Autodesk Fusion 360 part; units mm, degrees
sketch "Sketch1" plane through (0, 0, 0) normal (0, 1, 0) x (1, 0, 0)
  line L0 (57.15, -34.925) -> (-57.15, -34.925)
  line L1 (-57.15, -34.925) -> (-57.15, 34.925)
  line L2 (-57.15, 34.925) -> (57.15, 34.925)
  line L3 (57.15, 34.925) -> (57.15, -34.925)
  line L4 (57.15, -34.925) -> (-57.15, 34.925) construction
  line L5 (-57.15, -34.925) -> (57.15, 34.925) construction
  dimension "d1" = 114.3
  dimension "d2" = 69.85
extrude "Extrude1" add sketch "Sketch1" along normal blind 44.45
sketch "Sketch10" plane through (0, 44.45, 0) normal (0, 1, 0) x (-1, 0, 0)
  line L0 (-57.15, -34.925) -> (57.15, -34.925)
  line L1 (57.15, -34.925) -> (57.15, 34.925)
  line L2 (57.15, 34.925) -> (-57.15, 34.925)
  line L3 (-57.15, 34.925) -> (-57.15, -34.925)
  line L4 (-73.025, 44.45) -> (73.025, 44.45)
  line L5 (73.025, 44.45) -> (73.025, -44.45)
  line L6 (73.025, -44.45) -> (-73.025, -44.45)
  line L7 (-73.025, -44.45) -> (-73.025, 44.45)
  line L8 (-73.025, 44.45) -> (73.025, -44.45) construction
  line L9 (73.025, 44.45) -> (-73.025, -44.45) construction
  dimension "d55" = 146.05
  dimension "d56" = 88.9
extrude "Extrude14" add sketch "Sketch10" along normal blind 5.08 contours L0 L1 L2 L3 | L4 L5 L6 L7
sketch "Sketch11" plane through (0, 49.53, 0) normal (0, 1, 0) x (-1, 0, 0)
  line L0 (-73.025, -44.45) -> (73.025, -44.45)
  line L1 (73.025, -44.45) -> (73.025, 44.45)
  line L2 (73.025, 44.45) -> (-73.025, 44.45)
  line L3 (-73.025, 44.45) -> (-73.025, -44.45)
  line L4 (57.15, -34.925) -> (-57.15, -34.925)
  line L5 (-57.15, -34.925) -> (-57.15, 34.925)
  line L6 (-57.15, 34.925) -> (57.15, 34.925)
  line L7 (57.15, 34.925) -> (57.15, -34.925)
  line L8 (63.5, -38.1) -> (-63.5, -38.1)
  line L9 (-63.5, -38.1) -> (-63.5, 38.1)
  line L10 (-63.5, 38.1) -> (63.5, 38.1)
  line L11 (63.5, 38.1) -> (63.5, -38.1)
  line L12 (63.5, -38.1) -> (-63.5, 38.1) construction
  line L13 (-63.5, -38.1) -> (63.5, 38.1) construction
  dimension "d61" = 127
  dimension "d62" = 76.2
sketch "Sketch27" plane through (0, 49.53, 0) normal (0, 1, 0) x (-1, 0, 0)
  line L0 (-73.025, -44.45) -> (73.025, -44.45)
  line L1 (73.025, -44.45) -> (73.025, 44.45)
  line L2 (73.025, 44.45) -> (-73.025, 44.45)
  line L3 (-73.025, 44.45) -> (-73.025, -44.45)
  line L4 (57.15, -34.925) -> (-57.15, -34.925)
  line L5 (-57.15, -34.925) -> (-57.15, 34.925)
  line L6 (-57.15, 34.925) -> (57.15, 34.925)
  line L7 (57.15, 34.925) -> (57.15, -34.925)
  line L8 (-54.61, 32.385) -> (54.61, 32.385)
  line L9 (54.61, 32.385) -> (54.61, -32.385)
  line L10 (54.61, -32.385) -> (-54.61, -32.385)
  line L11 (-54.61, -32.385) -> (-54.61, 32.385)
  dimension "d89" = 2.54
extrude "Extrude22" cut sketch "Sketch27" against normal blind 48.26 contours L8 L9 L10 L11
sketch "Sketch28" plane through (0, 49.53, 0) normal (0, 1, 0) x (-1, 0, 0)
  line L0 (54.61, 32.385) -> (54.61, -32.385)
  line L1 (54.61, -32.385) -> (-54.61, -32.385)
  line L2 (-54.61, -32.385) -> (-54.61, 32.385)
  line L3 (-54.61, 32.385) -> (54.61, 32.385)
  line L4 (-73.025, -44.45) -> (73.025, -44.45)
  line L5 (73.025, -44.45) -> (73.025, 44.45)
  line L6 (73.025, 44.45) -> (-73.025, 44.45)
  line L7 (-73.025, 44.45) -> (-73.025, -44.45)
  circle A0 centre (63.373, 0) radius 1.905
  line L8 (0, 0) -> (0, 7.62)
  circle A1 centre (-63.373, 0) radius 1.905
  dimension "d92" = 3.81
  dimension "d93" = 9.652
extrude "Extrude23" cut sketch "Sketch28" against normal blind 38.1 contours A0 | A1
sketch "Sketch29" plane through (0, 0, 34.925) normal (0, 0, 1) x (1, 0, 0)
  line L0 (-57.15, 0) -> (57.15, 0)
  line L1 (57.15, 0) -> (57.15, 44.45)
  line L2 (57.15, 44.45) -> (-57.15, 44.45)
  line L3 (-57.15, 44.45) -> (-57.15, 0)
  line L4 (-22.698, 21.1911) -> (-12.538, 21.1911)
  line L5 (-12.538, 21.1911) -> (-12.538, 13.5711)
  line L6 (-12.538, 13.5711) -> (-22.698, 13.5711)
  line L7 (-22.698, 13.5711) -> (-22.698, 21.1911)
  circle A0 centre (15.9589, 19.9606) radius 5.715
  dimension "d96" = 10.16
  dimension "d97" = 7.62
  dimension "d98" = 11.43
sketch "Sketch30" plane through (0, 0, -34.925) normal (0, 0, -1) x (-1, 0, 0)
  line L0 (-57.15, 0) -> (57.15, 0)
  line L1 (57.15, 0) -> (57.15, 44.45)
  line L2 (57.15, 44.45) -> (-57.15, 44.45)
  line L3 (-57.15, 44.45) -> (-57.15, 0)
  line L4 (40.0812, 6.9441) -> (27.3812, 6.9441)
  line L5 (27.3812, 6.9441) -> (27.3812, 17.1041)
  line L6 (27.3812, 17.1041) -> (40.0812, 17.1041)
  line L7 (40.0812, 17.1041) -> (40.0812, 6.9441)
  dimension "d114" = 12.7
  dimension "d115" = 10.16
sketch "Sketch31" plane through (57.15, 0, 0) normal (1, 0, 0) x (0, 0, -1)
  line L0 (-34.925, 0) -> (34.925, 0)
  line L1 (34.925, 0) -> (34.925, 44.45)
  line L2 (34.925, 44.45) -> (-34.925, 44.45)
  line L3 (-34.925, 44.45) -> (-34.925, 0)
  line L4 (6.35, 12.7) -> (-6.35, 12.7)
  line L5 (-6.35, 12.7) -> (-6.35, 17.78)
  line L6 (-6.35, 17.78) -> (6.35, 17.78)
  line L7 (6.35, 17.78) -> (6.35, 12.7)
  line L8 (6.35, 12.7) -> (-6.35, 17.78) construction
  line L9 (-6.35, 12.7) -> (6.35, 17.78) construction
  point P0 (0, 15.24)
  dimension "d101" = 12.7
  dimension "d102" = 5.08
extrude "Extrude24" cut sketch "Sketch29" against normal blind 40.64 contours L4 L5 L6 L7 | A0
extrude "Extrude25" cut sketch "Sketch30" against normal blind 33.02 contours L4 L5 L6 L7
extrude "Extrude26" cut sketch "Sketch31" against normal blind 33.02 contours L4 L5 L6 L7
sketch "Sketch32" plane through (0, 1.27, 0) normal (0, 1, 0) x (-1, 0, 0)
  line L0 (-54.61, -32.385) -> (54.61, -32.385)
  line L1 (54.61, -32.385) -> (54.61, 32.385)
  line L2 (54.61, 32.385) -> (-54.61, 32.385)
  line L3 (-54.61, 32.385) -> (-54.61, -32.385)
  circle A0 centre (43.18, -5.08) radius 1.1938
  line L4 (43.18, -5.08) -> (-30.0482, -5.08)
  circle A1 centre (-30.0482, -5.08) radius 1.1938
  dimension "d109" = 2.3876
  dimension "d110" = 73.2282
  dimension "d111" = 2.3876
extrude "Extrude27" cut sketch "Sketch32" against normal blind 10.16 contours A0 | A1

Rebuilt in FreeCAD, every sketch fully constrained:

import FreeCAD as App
import Part
import Sketcher

V = App.Vector
Q = App.Units.Quantity


def add_polygon(sketch, points):
    """Adds a closed chain of lines whose ends are joined by coincident constraints."""
    first, n = sketch.GeometryCount, len(points)
    for a, b in zip(points, points[1:] + points[:1]):
        sketch.addGeometry(Part.LineSegment(App.Vector(*a, 0), App.Vector(*b, 0)), False)
    for i in range(n):
        sketch.addConstraint(Sketcher.Constraint("Coincident", first + i, 2, first + (i + 1) % n, 1))

doc = App.newDocument("Part")
body = doc.addObject("PartDesign::Body", "Body")

# Sketch on XZ plane
sketch1 = doc.addObject("Sketcher::SketchObject", "Sketch")
body.addObject(sketch1)
sketch1.AttachmentSupport = (doc.XZ_Plane, [""])
sketch1.MapMode = "FlatFace"
add_polygon(sketch1, [(-57, 35), (57, 35), (57, -35), (-57, -35)])  # lines 0-3
sketch1.addConstraint(Sketcher.Constraint("Horizontal", 0))
sketch1.addConstraint(Sketcher.Constraint("Vertical", 1))
sketch1.addConstraint(Sketcher.Constraint("Horizontal", 2))
sketch1.addConstraint(Sketcher.Constraint("Vertical", 3))
sketch1.addConstraint(Sketcher.Constraint("Symmetric", 0, 2, 2, 2, -1, 1))
sketch1.addConstraint(Sketcher.Constraint("DistanceX", 0, 1, 0, 2, Q("4.5 in")))
sketch1.addConstraint(Sketcher.Constraint("DistanceY", 1, 2, 1, 1, Q("2.75 in")))
pad1 = doc.addObject("PartDesign::Pad", "Pad")
body.addObject(pad1)
pad1.Profile = sketch1
pad1.Length = Q("1.75 in")
pad1.Reversed = True

# Sketch on XZ plane
sketch2 = doc.addObject("Sketcher::SketchObject", "Sketch001")
body.addObject(sketch2)
sketch2.AttachmentSupport = (doc.XZ_Plane, [""])
sketch2.MapMode = "FlatFace"
sketch2.AttachmentOffset = App.Placement(V(0, 0, -1.75 * 25.4), App.Rotation())
add_polygon(sketch2, [(-73, 44), (73, 44), (73, -44), (-73, -44)])  # lines 0-3
sketch2.addConstraint(Sketcher.Constraint("Horizontal", 0))
sketch2.addConstraint(Sketcher.Constraint("Vertical", 1))
sketch2.addConstraint(Sketcher.Constraint("Horizontal", 2))
sketch2.addConstraint(Sketcher.Constraint("Vertical", 3))
sketch2.addConstraint(Sketcher.Constraint("Symmetric", 0, 2, 2, 2, -1, 1))
sketch2.addConstraint(Sketcher.Constraint("DistanceY", 1, 2, 1, 1, Q("3.5 in")))
sketch2.addConstraint(Sketcher.Constraint("DistanceX", 0, 1, 0, 2, Q("5.75 in")))
pad2 = doc.addObject("PartDesign::Pad", "Pad001")
body.addObject(pad2)
pad2.Profile = sketch2
pad2.Length = Q("0.2 in")
pad2.Reversed = True

# Sketch on XZ plane
sketch3 = doc.addObject("Sketcher::SketchObject", "Sketch002")
body.addObject(sketch3)
sketch3.AttachmentSupport = (doc.XZ_Plane, [""])
sketch3.MapMode = "FlatFace"
sketch3.AttachmentOffset = App.Placement(V(0, 0, -1.95 * 25.4), App.Rotation())
add_polygon(sketch3, [(-55, 32), (55, 32), (55, -32), (-55, -32)])  # lines 0-3
sketch3.addConstraint(Sketcher.Constraint("Horizontal", 0))
sketch3.addConstraint(Sketcher.Constraint("Vertical", 1))
sketch3.addConstraint(Sketcher.Constraint("Horizontal", 2))
sketch3.addConstraint(Sketcher.Constraint("Vertical", 3))
sketch3.addConstraint(Sketcher.Constraint("Symmetric", 0, 2, 2, 2, -1, 1))
sketch3.addConstraint(Sketcher.Constraint("DistanceX", 0, 1, 0, 2, Q("4.3 in")))
sketch3.addConstraint(Sketcher.Constraint("DistanceY", 1, 2, 1, 1, Q("2.55 in")))
pocket1 = doc.addObject("PartDesign::Pocket", "Pocket")
body.addObject(pocket1)
pocket1.Profile = sketch3
pocket1.Length = Q("1.9 in")
pocket1.Reversed = True

# Sketch on XZ plane
sketch4 = doc.addObject("Sketcher::SketchObject", "Sketch003")
body.addObject(sketch4)
sketch4.AttachmentSupport = (doc.XZ_Plane, [""])
sketch4.MapMode = "FlatFace"
sketch4.AttachmentOffset = App.Placement(V(0, 0, -1.95 * 25.4), App.Rotation())
sketch4.addGeometry(Part.Circle(V(-63.4, 0, 0), V(0, 0, 1), 1.9), False)
sketch4.addGeometry(Part.Circle(V(63.4, 0, 0), V(0, 0, 1), 1.9), False)
sketch4.addConstraint(Sketcher.Constraint("Equal", 0, 1))
sketch4.addConstraint(Sketcher.Constraint("Symmetric", 0, 3, 1, 3, -1, 1))
sketch4.addConstraint(Sketcher.Constraint("PointOnObject", 0, 3, -1))
sketch4.addConstraint(Sketcher.Constraint("Diameter", 0, Q("0.15 in")))
sketch4.addConstraint(Sketcher.Constraint("DistanceX", 0, 3, 1, 3, Q("4.99 in")))
pocket2 = doc.addObject("PartDesign::Pocket", "Pocket001")
body.addObject(pocket2)
pocket2.Profile = sketch4
pocket2.Length = Q("1.5 in")
pocket2.Reversed = True

# Sketch on XY plane
sketch5 = doc.addObject("Sketcher::SketchObject", "Sketch004")
body.addObject(sketch5)
sketch5.AttachmentSupport = (doc.XY_Plane, [""])
sketch5.MapMode = "FlatFace"
sketch5.AttachmentOffset = App.Placement(V(0, 0, 1.375 * 25.4), App.Rotation())
add_polygon(sketch5, [(-13, 21), (-23, 21), (-23, 14), (-13, 14)])  # lines 0-3
sketch5.addGeometry(Part.Circle(V(16, 20, 0), V(0, 0, 1), 6), False)  # 4
sketch5.addConstraint(Sketcher.Constraint("Horizontal", 0))
sketch5.addConstraint(Sketcher.Constraint("Vertical", 1))
sketch5.addConstraint(Sketcher.Constraint("Horizontal", 2))
sketch5.addConstraint(Sketcher.Constraint("Vertical", 3))
sketch5.addConstraint(Sketcher.Constraint("Diameter", 4, Q("0.45 in")))
sketch5.addConstraint(Sketcher.Constraint("DistanceX", 0, 2, 0, 1, Q("0.4 in")))
sketch5.addConstraint(Sketcher.Constraint("DistanceY", 1, 2, 1, 1, Q("0.3 in")))
sketch5.addConstraint(Sketcher.Constraint("DistanceX", -1, 1, 4, 3, Q("0.6283 in")))
sketch5.addConstraint(Sketcher.Constraint("DistanceY", -1, 1, 0, 2, Q("0.8343 in")))
sketch5.addConstraint(Sketcher.Constraint("DistanceY", -1, 1, 4, 3, 19.9606))
sketch5.addConstraint(Sketcher.Constraint("DistanceX", 0, 2, -1, 1, 22.698))
pocket3 = doc.addObject("PartDesign::Pocket", "Pocket002")
body.addObject(pocket3)
pocket3.Profile = sketch5
pocket3.Length = Q("1.6 in")

# Sketch on XY plane
sketch6 = doc.addObject("Sketcher::SketchObject", "Sketch005")
body.addObject(sketch6)
sketch6.AttachmentSupport = (doc.XY_Plane, [""])
sketch6.MapMode = "FlatFace"
sketch6.AttachmentOffset = App.Placement(V(0, 0, -1.375 * 25.4), App.Rotation())
add_polygon(sketch6, [(-27, 7), (-40, 7), (-40, 17), (-27, 17)])  # lines 0-3
sketch6.addConstraint(Sketcher.Constraint("Horizontal", 0))
sketch6.addConstraint(Sketcher.Constraint("Vertical", 1))
sketch6.addConstraint(Sketcher.Constraint("Horizontal", 2))
sketch6.addConstraint(Sketcher.Constraint("Vertical", 3))
sketch6.addConstraint(Sketcher.Constraint("DistanceX", 0, 2, 0, 1, Q("0.5 in")))
sketch6.addConstraint(Sketcher.Constraint("DistanceY", 1, 1, 1, 2, Q("0.4 in")))
sketch6.addConstraint(Sketcher.Constraint("DistanceX", 0, 2, -1, 1, Q("1.578 in")))
sketch6.addConstraint(Sketcher.Constraint("DistanceY", -1, 1, 0, 2, Q("0.2734 in")))
pocket4 = doc.addObject("PartDesign::Pocket", "Pocket003")
body.addObject(pocket4)
pocket4.Profile = sketch6
pocket4.Length = Q("1.3 in")
pocket4.Reversed = True

# Sketch on YZ plane
sketch7 = doc.addObject("Sketcher::SketchObject", "Sketch006")
body.addObject(sketch7)
sketch7.AttachmentSupport = (doc.YZ_Plane, [""])
sketch7.MapMode = "FlatFace"
sketch7.AttachmentOffset = App.Placement(V(0, 0, 2.25 * 25.4), App.Rotation())
add_polygon(sketch7, [(13, 6), (13, -6), (18, -6), (18, 6)])  # lines 0-3
sketch7.addConstraint(Sketcher.Constraint("Vertical", 0))
sketch7.addConstraint(Sketcher.Constraint("Horizontal", 1))
sketch7.addConstraint(Sketcher.Constraint("Vertical", 2))
sketch7.addConstraint(Sketcher.Constraint("Horizontal", 3))
sketch7.addConstraint(Sketcher.Constraint("DistanceX", 1, 1, 1, 2, Q("0.2 in")))
sketch7.addConstraint(Sketcher.Constraint("DistanceY", 0, 2, 0, 1, Q("0.5 in")))
sketch7.addConstraint(Sketcher.Constraint("DistanceX", -1, 1, 0, 2, Q("0.5 in")))
sketch7.addConstraint(Sketcher.Constraint("DistanceY", 0, 2, -1, 1, Q("0.25 in")))
pocket5 = doc.addObject("PartDesign::Pocket", "Pocket004")
body.addObject(pocket5)
pocket5.Profile = sketch7
pocket5.Length = Q("1.3 in")

# Sketch on XZ plane
sketch8 = doc.addObject("Sketcher::SketchObject", "Sketch007")
body.addObject(sketch8)
sketch8.AttachmentSupport = (doc.XZ_Plane, [""])
sketch8.MapMode = "FlatFace"
sketch8.AttachmentOffset = App.Placement(V(0, 0, -0.05 * 25.4), App.Rotation())
sketch8.addGeometry(Part.Circle(V(-43.2, -5.1, 0), V(0, 0, 1), 1.2), False)
sketch8.addGeometry(Part.Circle(V(30, -5.1, 0), V(0, 0, 1), 1.2), False)
sketch8.addConstraint(Sketcher.Constraint("Equal", 0, 1))
sketch8.addConstraint(Sketcher.Constraint("Horizontal", 0, 3, 1, 3))
sketch8.addConstraint(Sketcher.Constraint("Diameter", 0, Q("0.094 in")))
sketch8.addConstraint(Sketcher.Constraint("DistanceX", 0, 3, 1, 3, Q("2.883 in")))
sketch8.addConstraint(Sketcher.Constraint("DistanceX", 0, 3, -1, 1, Q("1.7 in")))
sketch8.addConstraint(Sketcher.Constraint("DistanceY", 0, 3, -1, 1, Q("0.2 in")))
pocket6 = doc.addObject("PartDesign::Pocket", "Pocket005")
body.addObject(pocket6)
pocket6.Profile = sketch8
pocket6.Length = Q("0.4 in")
pocket6.Reversed = True

doc.recompute()
